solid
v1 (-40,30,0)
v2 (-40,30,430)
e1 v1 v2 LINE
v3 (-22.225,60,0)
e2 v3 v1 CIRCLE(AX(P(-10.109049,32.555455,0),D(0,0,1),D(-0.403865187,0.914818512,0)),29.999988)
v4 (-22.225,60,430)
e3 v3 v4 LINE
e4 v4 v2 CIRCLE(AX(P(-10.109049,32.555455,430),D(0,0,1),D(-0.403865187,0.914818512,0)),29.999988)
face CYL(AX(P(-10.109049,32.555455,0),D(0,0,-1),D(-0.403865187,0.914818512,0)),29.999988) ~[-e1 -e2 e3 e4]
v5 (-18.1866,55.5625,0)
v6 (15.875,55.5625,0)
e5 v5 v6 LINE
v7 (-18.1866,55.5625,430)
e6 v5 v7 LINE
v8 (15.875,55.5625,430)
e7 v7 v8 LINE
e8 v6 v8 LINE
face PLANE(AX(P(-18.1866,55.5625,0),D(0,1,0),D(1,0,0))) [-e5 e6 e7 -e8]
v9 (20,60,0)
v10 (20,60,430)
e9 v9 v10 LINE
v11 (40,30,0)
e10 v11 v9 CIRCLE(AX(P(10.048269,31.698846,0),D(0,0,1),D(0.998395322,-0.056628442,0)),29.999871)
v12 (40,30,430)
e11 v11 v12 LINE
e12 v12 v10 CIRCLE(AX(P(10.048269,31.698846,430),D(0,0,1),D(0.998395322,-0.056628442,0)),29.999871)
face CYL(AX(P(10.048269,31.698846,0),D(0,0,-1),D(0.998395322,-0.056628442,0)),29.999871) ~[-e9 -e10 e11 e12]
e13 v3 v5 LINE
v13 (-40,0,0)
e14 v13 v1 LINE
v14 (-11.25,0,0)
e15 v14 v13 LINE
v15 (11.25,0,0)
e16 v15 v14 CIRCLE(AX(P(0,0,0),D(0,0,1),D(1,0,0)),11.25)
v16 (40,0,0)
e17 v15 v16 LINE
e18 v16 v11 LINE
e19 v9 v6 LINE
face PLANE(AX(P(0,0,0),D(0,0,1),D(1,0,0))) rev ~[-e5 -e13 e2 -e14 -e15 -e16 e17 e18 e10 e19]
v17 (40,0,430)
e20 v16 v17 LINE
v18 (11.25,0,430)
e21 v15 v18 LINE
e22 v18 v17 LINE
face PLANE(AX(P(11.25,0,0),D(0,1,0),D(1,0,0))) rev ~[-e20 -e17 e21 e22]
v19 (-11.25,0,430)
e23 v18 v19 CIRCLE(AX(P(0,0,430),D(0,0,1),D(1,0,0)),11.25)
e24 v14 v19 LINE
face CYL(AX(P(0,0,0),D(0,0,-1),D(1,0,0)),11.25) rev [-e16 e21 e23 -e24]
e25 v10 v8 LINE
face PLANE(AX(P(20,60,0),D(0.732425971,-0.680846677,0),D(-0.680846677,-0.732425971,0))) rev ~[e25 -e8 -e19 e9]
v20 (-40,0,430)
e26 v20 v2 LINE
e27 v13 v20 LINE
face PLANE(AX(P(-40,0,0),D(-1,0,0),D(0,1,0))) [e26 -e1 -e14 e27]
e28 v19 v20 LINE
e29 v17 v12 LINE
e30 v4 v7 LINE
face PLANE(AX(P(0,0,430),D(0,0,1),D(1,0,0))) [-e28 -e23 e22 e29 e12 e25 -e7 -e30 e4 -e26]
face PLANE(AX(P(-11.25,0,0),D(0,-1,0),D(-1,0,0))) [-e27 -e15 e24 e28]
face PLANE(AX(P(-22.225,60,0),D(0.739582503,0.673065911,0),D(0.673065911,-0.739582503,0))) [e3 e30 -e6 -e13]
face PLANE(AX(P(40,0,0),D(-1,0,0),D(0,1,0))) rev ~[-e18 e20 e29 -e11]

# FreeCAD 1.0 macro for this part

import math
import FreeCAD as App
import Part
import Sketcher
Q = App.Units.Quantity

doc = App.newDocument("Part")
body = doc.addObject("PartDesign::Body", "Body")

# Sketch on XY plane
sketch1 = body.newObject("Sketcher::SketchObject", "Sketch")
sketch1.AttachmentSupport = (doc.getObject("XY_Plane"), [""])
sketch1.MapMode = "FlatFace"
sketch1.addGeometry([
    Part.ArcOfCircle(Part.Circle(App.Vector(0, 0, 0), App.Vector(0, 0, 1), 11.25), math.radians(0), math.radians(180)),  # 0
    Part.LineSegment(App.Vector(11.25, 0, 0), App.Vector(40, 0, 0)),  # 1
    Part.LineSegment(App.Vector(40, 0, 0), App.Vector(40, 30, 0)),  # 2
    Part.ArcOfCircle(Part.Circle(App.Vector(10.0481, 31.6988, 0), App.Vector(0, 0, 1), 30.000037), math.radians(-3.246201), math.radians(70.626167)),  # 3
    Part.LineSegment(App.Vector(20, 60, 0), App.Vector(15.875, 55.5625, 0)),  # 4
    Part.LineSegment(App.Vector(15.875, 55.5625, 0), App.Vector(-18.1866, 55.5625, 0)),  # 5
    Part.LineSegment(App.Vector(-18.1866, 55.5625, 0), App.Vector(-22.225, 60, 0)),  # 6
    Part.ArcOfCircle(Part.Circle(App.Vector(-10.109, 32.5554, 0), App.Vector(0, 0, 1), 30.000059), math.radians(113.820077), math.radians(184.88637)),  # 7
    Part.LineSegment(App.Vector(-40, 30, 0), App.Vector(-40, 0, 0)),  # 8
    Part.LineSegment(App.Vector(-40, 0, 0), App.Vector(-11.25, 0, 0)),  # 9
], False)
sketch1.addConstraint([
    Sketcher.Constraint("Coincident", 0, 1, 1, 1),
    Sketcher.Constraint("Coincident", 1, 2, 2, 1),
    Sketcher.Constraint("Coincident", 2, 2, 3, 1),
    Sketcher.Constraint("Coincident", 3, 2, 4, 1),
    Sketcher.Constraint("Coincident", 4, 2, 5, 1),
    Sketcher.Constraint("Coincident", 5, 2, 6, 1),
    Sketcher.Constraint("Coincident", 6, 2, 7, 1),
    Sketcher.Constraint("Coincident", 7, 2, 8, 1),
    Sketcher.Constraint("Coincident", 8, 2, 9, 1),
    Sketcher.Constraint("Coincident", 9, 2, 0, 2),
    Sketcher.Constraint("Horizontal", 1),
    Sketcher.Constraint("Vertical", 2),
    Sketcher.Constraint("Horizontal", 5),
    Sketcher.Constraint("Vertical", 8),
    Sketcher.Constraint("Horizontal", 9),
    Sketcher.Constraint("Coincident", 0, 3, -1, 1),
    Sketcher.Constraint("Equal", 3, 7),
    Sketcher.Constraint("Symmetric", 1, 2, 8, 2, -1, 1),
    Sketcher.Constraint("PointOnObject", 0, 1, -1),
    Sketcher.Constraint("Horizontal", 3, 2, 6, 2),
    Sketcher.Constraint("Horizontal", 2, 2, 7, 2),
    Sketcher.Constraint("Radius", 3, Q("30 mm")),
    Sketcher.Constraint("DistanceY", 2, 1, 2, 2, Q("30 mm")),
    Sketcher.Constraint("Radius", 0, Q("11.25 mm")),
    Sketcher.Constraint("Distance", 6, Q("6 mm")),
    Sketcher.Constraint("DistanceX", -1, 1, 1, 2, Q("40 mm")),
    Sketcher.Constraint("DistanceX", -1, 1, 3, 2, Q("20 mm")),
    Sketcher.Constraint("DistanceY", -1, 1, 3, 2, Q("60 mm")),
    Sketcher.Constraint("Angle", 4, Q("-132.9098 deg")),
    Sketcher.Constraint("DistanceX", 6, 2, 4, 2, Q("38.1 mm")),
    Sketcher.Constraint("DistanceX", 5, 2, 5, 1, Q("34.0616 mm")),
])
pad1 = body.newObject("PartDesign::Pad", "Pad")
pad1.Profile = sketch1
pad1.Length = 430

doc.recompute()
